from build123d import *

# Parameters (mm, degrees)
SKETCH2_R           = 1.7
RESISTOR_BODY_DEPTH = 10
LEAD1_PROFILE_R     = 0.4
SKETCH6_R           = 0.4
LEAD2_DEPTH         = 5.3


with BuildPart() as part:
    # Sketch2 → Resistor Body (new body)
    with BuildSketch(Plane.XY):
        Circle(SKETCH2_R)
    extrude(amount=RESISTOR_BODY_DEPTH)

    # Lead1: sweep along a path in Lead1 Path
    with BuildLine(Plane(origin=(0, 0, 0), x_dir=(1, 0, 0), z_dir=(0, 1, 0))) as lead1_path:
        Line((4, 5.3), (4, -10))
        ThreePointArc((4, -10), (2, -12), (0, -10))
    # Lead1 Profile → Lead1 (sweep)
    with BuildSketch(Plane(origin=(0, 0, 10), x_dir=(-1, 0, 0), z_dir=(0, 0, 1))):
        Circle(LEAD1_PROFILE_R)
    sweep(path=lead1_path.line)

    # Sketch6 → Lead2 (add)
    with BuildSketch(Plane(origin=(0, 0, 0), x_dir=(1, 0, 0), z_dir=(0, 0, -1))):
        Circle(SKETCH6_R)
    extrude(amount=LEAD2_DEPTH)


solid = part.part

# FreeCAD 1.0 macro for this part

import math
import FreeCAD as App
import Part
import Sketcher
Q = App.Units.Quantity

doc = App.newDocument("Part")
params = doc.addObject("Spreadsheet::Sheet", "Params")
for row, (alias, value) in enumerate([
    ("sketch1_diameter", "3.4 mm"),
    ("pad1_length", "10 mm"),
    ("sketch2_diameter", "0.8 mm"),
    ("sketch3_radius", "2 mm"),
    ("sketch3_height", "15.3 mm"),
    ("sketch4_diameter", "0.8 mm"),
    ("pad2_length", "5.3 mm"),
], start=1):
    params.set(f"A{row}", alias)
    params.set(f"B{row}", "=" + value)
    params.setAlias(f"B{row}", alias)

body = doc.addObject("PartDesign::Body", "Body")

# Sketch on XY plane
sketch1 = doc.addObject("Sketcher::SketchObject", "Sketch")
body.addObject(sketch1)
sketch1.AttachmentSupport = (doc.XY_Plane, [""])
sketch1.MapMode = "FlatFace"
sketch1.addGeometry(Part.Circle(App.Vector(0, 0, 0), App.Vector(0, 0, 1), 1.7), False)
sketch1.addConstraint([
    Sketcher.Constraint("Coincident", 0, 3, -1, 1),
    Sketcher.Constraint("Diameter", 0, Q("3.4 mm")),
])
sketch1.setExpression("Constraints[1]", "Params.sketch1_diameter")
pad1 = doc.addObject("PartDesign::Pad", "Pad")
body.addObject(pad1)
pad1.Profile = sketch1
pad1.setExpression("Length", "Params.pad1_length")

# Sketch on XY plane
sketch2 = doc.addObject("Sketcher::SketchObject", "Sketch001")
body.addObject(sketch2)
sketch2.AttachmentSupport = (doc.XY_Plane, [""])
sketch2.MapMode = "FlatFace"
sketch2.AttachmentOffset = App.Placement(App.Vector(0, 0, 10), App.Rotation())
sketch2.addGeometry(Part.Circle(App.Vector(0, 0, 0), App.Vector(0, 0, 1), 0.4), False)
sketch2.addConstraint([
    Sketcher.Constraint("Coincident", 0, 3, -1, 1),
    Sketcher.Constraint("Diameter", 0, Q("0.8 mm")),
])
sketch2.setExpression("Constraints[1]", "Params.sketch2_diameter")

# Sketch on XZ plane
sketch3 = doc.addObject("Sketcher::SketchObject", "Sketch002")
body.addObject(sketch3)
sketch3.AttachmentSupport = (doc.XZ_Plane, [""])
sketch3.MapMode = "FlatFace"
sketch3.addGeometry([
    Part.LineSegment(App.Vector(4, -5.3, 0), App.Vector(4, 10, 0)),
    Part.ArcOfCircle(Part.Circle(App.Vector(2, 10, 0), App.Vector(0, 0, 1), 2), math.radians(0), math.radians(180)),
], False)
sketch3.addConstraint([
    Sketcher.Constraint("Tangent", 0, 2, 1, 1),
    Sketcher.Constraint("Vertical", 0),
    Sketcher.Constraint("PointOnObject", 1, 2, -2),
    Sketcher.Constraint("Horizontal", 0, 2, 1, 2),
    Sketcher.Constraint("Radius", 1, Q("2 mm")),
    Sketcher.Constraint("DistanceY", 0, 1, 0, 2, Q("15.3 mm")),
    Sketcher.Constraint("DistanceY", -1, 1, 1, 3, Q("10 mm")),
])
sketch3.setExpression("Constraints[4]", "Params.sketch3_radius")
sketch3.setExpression("Constraints[5]", "Params.sketch3_height")
doc.recompute()

additivepipe = doc.addObject("PartDesign::AdditivePipe", "AdditivePipe")
body.addObject(additivepipe)
additivepipe.Profile = sketch2
additivepipe.Spine = (sketch3, ["Edge1", "Edge2"])

# Sketch on XY plane
sketch4 = doc.addObject("Sketcher::SketchObject", "Sketch003")
body.addObject(sketch4)
sketch4.AttachmentSupport = (doc.XY_Plane, [""])
sketch4.MapMode = "FlatFace"
sketch4.addGeometry(Part.Circle(App.Vector(0, 0, 0), App.Vector(0, 0, 1), 0.4), False)
sketch4.addConstraint([
    Sketcher.Constraint("Coincident", 0, 3, -1, 1),
    Sketcher.Constraint("Diameter", 0, Q("0.8 mm")),
])
sketch4.setExpression("Constraints[1]", "Params.sketch4_diameter")
pad2 = doc.addObject("PartDesign::Pad", "Pad001")
body.addObject(pad2)
pad2.Profile = sketch4
pad2.setExpression("Length", "Params.pad2_length")
pad2.Reversed = True

doc.recompute()
